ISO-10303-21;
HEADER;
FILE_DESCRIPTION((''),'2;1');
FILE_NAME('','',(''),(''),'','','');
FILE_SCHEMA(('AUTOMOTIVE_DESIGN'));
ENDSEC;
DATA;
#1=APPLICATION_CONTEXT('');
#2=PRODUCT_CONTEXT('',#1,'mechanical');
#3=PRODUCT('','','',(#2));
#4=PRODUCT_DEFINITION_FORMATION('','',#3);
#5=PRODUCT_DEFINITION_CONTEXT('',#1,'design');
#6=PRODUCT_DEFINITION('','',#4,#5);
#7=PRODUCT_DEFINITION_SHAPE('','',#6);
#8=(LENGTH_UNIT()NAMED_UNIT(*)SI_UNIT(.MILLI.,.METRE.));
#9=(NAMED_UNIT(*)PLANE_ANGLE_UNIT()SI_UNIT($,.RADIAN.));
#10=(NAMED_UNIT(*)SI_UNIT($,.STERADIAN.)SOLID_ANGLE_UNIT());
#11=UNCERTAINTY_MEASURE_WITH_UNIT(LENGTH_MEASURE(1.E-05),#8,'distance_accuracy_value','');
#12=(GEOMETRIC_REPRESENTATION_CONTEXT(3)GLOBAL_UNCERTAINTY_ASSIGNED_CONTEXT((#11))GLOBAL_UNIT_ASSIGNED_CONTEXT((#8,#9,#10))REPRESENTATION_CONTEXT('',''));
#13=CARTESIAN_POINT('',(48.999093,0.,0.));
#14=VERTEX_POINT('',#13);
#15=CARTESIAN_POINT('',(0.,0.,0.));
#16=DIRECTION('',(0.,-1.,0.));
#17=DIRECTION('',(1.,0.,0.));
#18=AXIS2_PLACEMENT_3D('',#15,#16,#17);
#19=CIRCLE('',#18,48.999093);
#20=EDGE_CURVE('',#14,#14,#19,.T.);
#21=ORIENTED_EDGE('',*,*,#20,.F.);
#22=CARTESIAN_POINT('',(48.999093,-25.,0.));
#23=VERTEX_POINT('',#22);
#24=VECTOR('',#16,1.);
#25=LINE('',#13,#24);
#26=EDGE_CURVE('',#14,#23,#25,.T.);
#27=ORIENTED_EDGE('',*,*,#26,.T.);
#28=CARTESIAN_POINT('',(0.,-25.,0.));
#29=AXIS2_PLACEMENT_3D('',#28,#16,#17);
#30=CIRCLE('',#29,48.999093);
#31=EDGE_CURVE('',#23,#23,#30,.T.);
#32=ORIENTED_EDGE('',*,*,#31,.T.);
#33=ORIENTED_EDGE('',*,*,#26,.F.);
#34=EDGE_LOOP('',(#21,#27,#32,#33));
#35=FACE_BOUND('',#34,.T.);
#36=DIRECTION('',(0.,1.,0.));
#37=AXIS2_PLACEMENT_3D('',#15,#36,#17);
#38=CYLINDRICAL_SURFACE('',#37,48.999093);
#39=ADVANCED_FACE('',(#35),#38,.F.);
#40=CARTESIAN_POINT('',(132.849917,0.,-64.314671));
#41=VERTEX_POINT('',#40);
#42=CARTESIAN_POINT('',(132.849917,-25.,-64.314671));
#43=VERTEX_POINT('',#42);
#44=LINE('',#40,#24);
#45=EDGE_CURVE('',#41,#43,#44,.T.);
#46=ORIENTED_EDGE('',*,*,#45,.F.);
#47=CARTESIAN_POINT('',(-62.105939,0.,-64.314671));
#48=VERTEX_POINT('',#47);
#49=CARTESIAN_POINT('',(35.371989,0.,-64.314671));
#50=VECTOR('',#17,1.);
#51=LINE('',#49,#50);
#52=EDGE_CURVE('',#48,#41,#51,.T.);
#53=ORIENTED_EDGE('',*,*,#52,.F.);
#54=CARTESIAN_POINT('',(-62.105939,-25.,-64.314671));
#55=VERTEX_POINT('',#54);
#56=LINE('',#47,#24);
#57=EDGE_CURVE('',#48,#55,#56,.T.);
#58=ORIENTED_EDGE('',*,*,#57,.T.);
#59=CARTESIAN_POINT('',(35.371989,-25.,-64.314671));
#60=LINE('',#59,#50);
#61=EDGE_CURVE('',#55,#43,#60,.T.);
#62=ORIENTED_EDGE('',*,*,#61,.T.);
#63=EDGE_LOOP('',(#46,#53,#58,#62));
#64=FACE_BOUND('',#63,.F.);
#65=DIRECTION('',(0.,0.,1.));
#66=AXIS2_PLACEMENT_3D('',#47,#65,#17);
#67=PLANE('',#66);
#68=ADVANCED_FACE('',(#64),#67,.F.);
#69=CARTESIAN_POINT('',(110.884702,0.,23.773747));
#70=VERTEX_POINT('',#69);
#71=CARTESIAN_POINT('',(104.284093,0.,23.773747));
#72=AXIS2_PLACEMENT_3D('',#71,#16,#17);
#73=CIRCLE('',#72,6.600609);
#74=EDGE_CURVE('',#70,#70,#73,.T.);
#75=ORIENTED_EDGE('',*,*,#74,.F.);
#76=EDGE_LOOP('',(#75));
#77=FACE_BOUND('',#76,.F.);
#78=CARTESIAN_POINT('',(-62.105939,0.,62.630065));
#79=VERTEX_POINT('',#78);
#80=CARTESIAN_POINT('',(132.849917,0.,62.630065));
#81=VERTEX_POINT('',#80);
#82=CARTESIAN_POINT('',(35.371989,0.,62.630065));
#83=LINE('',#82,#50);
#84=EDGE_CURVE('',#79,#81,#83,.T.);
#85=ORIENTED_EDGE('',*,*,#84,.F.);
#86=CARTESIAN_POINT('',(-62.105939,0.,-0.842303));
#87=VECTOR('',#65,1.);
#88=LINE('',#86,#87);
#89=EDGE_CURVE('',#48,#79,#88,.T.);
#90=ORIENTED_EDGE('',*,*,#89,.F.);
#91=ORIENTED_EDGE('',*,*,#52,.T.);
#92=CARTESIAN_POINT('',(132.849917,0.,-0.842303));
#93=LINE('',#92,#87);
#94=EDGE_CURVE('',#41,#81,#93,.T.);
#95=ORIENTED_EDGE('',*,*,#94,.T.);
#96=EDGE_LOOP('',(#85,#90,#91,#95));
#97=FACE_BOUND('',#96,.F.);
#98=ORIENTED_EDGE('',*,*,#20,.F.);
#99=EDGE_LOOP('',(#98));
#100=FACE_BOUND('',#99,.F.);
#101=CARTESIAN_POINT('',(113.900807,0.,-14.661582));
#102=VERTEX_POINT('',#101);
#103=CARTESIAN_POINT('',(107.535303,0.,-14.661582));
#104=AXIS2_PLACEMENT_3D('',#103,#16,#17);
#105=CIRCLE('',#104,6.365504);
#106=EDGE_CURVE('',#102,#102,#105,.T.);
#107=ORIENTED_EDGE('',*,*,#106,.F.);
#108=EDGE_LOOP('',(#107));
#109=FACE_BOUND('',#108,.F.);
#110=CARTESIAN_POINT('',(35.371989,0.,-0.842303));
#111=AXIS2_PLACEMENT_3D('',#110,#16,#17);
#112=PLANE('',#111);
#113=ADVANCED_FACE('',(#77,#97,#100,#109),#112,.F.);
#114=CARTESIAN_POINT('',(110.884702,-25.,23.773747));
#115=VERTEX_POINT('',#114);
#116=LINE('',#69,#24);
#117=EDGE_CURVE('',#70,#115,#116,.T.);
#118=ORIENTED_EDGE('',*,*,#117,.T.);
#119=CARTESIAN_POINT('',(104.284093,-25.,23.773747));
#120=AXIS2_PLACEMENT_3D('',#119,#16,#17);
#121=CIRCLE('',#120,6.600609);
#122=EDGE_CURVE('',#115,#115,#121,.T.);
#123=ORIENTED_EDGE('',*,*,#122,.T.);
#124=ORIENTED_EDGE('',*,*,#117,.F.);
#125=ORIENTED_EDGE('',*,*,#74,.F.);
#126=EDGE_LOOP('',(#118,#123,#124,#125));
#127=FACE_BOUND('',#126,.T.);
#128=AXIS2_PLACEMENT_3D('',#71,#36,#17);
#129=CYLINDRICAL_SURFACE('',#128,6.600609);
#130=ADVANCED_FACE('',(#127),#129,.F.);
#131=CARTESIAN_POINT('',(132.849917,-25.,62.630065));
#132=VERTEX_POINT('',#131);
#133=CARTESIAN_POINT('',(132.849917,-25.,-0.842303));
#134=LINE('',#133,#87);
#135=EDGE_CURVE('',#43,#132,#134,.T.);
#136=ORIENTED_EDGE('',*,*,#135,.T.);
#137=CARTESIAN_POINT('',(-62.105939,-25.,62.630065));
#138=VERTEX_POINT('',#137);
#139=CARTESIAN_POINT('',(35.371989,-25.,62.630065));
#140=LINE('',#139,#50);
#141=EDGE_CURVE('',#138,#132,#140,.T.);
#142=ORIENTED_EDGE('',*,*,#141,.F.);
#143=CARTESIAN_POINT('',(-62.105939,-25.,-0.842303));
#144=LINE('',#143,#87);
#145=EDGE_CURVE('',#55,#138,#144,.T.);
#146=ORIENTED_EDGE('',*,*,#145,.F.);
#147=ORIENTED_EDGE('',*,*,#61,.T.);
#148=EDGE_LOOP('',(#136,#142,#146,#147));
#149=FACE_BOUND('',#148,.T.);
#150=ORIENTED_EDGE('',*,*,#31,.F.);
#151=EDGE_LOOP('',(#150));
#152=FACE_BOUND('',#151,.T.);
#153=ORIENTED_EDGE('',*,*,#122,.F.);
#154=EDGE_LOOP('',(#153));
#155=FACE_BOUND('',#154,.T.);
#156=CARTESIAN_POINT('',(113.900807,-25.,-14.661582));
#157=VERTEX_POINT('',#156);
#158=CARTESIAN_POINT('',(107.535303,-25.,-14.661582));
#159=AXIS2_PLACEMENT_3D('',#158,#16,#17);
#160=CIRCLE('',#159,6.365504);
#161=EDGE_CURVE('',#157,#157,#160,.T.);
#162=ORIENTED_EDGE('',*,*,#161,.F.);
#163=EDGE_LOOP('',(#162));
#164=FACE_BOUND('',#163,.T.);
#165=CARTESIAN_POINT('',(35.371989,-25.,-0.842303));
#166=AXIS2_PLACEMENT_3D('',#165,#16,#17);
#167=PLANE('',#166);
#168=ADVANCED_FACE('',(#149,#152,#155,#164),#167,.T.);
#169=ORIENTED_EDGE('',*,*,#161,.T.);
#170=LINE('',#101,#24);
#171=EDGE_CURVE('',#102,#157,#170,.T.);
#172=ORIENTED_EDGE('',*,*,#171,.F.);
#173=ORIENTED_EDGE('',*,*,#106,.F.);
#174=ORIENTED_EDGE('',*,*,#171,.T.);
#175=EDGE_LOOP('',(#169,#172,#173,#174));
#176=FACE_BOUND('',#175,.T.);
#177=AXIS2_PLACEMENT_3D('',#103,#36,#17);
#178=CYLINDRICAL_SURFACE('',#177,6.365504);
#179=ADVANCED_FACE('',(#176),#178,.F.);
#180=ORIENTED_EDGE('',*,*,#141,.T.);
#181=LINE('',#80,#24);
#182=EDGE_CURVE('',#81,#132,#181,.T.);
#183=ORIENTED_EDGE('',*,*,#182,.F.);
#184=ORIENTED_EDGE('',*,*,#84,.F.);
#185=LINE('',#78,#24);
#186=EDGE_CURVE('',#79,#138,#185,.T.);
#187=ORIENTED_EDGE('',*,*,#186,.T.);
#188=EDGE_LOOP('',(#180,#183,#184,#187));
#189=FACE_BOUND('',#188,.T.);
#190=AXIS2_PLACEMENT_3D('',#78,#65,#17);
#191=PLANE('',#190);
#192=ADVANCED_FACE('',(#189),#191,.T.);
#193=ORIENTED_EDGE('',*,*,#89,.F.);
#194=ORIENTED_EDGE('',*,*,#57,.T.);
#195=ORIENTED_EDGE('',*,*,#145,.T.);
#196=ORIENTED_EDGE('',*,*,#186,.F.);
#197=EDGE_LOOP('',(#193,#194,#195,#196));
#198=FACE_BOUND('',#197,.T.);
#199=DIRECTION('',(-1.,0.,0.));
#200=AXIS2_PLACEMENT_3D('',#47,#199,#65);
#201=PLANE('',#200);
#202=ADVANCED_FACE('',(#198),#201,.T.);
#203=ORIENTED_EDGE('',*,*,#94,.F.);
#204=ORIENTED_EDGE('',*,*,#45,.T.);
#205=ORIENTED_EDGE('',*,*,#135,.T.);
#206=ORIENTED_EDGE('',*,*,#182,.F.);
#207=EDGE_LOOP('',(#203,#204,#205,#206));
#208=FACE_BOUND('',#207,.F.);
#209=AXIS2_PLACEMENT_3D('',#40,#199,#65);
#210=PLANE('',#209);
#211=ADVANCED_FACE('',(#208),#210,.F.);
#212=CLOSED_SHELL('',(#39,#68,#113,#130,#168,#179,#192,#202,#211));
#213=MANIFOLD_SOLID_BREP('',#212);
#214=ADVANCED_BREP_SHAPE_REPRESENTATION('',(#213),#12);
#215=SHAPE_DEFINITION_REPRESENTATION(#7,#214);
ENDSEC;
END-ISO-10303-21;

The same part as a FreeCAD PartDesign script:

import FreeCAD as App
import Part
import Sketcher

V = App.Vector

doc = App.newDocument("Part")
body = doc.addObject("PartDesign::Body", "Body")

sketch1 = body.newObject("Sketcher::SketchObject", "Sketch")
sketch1.AttachmentSupport = (doc.getObject("XZ_Plane"), [""])
sketch1.MapMode = "FlatFace"
sketch1.addGeometry(Part.LineSegment(V(-62, 63, 0), V(-62, -64, 0)), False)
sketch1.addGeometry(Part.LineSegment(V(-62, -64, 0), V(133, -64, 0)), False)
sketch1.addGeometry(Part.LineSegment(V(133, -64, 0), V(133, 63, 0)), False)
sketch1.addGeometry(Part.LineSegment(V(133, 63, 0), V(-62, 63, 0)), False)
sketch1.addGeometry(Part.Circle(V(108, -15, 0), V(0, 0, 1), 6), False)
sketch1.addGeometry(Part.Circle(V(0, 0, 0), V(0, 0, 1), 49), False)
sketch1.addGeometry(Part.Circle(V(104, 24, 0), V(0, 0, 1), 7), False)
sketch1.addConstraint(Sketcher.Constraint("Coincident", 0, 2, 1, 1))
sketch1.addConstraint(Sketcher.Constraint("Coincident", 1, 2, 2, 1))
sketch1.addConstraint(Sketcher.Constraint("Coincident", 2, 2, 3, 1))
sketch1.addConstraint(Sketcher.Constraint("Coincident", 3, 2, 0, 1))
sketch1.addConstraint(Sketcher.Constraint("Vertical", 0))
sketch1.addConstraint(Sketcher.Constraint("Horizontal", 1))
sketch1.addConstraint(Sketcher.Constraint("Vertical", 2))
sketch1.addConstraint(Sketcher.Constraint("Horizontal", 3))
sketch1.addConstraint(Sketcher.Constraint("Coincident", 5, 3, -1, 1))
sketch1.addConstraint(Sketcher.Constraint("Diameter", 6, 13.201218))
sketch1.addConstraint(Sketcher.Constraint("Diameter", 4, 12.731008))
sketch1.addConstraint(Sketcher.Constraint("Diameter", 5, 97.998186))
sketch1.addConstraint(Sketcher.Constraint("DistanceX", 1, 1, 1, 2, 194.955856))
sketch1.addConstraint(Sketcher.Constraint("DistanceY", 0, 2, 0, 1, 126.944736))
sketch1.addConstraint(Sketcher.Constraint("DistanceY", 4, 3, -1, 1, 14.661582))
sketch1.addConstraint(Sketcher.Constraint("DistanceX", 0, 2, -1, 1, 62.105939))
sketch1.addConstraint(Sketcher.Constraint("DistanceY", 0, 2, -1, 1, 64.314671))
sketch1.addConstraint(Sketcher.Constraint("DistanceX", 6, 3, 4, 3, 3.25121))
sketch1.addConstraint(Sketcher.Constraint("DistanceY", 4, 3, 6, 3, 38.435329))
sketch1.addConstraint(Sketcher.Constraint("DistanceX", 0, 2, 4, 3, 169.641242))
pad1 = body.newObject("PartDesign::Pad", "Pad")
pad1.Profile = sketch1
pad1.Length = 25

doc.recompute()
